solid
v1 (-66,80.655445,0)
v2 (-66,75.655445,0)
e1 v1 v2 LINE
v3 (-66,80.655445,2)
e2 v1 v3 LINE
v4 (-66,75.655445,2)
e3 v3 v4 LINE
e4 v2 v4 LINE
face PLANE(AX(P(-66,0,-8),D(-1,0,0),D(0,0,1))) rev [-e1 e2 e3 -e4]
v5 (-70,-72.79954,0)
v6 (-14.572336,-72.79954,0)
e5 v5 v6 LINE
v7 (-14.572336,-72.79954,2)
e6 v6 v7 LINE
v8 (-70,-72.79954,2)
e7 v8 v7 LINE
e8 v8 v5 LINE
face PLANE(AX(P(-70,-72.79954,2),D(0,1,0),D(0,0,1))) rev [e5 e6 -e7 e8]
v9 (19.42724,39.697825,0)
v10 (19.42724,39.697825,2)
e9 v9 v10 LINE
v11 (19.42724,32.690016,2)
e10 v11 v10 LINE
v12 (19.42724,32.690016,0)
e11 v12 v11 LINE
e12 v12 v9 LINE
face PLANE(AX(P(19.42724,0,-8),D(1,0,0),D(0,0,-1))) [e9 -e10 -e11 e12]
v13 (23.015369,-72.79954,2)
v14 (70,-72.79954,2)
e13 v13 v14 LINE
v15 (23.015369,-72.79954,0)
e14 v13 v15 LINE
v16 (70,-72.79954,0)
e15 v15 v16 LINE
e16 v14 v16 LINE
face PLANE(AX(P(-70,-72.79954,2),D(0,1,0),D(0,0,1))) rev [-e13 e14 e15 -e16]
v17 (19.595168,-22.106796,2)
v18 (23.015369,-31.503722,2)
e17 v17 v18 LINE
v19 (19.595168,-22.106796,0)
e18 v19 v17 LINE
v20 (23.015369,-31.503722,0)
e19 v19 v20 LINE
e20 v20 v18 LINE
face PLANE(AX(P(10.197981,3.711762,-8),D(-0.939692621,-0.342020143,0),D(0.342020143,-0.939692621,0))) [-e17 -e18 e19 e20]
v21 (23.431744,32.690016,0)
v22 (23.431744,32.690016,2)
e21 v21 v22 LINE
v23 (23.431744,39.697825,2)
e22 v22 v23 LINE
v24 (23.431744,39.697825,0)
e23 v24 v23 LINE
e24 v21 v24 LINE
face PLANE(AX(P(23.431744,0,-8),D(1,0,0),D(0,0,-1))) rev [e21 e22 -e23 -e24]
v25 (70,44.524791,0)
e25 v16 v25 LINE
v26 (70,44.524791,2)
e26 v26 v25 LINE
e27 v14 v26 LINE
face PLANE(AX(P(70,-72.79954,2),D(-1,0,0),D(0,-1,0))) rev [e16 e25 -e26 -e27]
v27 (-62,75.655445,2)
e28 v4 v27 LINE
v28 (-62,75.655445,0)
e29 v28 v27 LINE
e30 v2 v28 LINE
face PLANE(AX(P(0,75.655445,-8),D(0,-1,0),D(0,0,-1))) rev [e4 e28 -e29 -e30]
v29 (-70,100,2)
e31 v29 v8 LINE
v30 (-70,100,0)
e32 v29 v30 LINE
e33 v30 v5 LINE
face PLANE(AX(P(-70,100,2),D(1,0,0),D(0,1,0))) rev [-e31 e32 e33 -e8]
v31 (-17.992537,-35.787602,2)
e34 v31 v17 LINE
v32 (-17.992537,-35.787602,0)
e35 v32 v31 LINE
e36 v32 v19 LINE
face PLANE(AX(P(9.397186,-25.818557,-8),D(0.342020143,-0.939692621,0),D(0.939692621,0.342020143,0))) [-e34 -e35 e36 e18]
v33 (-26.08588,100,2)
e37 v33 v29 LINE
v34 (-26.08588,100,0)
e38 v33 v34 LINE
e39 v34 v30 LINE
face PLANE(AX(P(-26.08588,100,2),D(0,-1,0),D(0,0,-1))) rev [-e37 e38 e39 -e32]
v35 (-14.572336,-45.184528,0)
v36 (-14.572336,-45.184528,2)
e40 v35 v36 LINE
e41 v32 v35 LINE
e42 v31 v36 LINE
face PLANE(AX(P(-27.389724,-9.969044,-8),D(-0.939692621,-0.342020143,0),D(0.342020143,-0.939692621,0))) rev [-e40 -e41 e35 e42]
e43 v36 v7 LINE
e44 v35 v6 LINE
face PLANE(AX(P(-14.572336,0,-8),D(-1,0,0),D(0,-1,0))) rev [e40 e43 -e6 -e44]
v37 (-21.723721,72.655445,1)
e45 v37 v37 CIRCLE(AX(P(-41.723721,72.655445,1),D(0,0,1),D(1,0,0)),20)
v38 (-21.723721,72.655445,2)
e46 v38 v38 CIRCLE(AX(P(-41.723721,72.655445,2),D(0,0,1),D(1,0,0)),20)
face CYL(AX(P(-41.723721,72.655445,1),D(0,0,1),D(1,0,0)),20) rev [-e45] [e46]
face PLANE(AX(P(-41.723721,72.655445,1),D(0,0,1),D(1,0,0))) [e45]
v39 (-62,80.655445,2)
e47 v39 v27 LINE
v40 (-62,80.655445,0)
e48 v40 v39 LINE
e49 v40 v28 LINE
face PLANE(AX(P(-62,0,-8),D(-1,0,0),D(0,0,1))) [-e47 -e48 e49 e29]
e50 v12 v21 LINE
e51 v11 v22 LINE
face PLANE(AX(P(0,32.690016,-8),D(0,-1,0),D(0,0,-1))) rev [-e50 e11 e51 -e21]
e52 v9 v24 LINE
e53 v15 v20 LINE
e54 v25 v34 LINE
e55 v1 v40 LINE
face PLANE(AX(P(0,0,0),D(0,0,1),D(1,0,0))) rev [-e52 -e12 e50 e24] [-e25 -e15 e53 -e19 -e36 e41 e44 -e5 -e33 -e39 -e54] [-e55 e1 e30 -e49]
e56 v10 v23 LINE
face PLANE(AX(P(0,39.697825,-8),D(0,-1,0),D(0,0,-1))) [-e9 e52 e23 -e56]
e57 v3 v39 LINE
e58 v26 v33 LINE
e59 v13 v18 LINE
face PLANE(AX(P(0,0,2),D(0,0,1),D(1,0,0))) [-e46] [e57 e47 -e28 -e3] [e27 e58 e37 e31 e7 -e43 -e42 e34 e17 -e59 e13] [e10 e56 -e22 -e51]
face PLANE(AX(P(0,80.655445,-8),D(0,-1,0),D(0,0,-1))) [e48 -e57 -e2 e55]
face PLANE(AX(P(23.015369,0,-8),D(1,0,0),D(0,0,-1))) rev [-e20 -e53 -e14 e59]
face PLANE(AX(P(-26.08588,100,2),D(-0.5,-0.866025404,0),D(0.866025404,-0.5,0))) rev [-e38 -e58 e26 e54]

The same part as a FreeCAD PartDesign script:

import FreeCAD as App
import Part
import Sketcher
from FreeCAD import Vector
Q = App.Units.Quantity

doc = App.newDocument("Part")
body = doc.addObject("PartDesign::Body", "Body")

sketch1 = body.newObject("Sketcher::SketchObject", "Sketch")
sketch1.AttachmentSupport = (doc.getObject("XY_Plane"), [""])
sketch1.MapMode = "FlatFace"
sketch1.addGeometry([
    Part.LineSegment(Vector(-70, 100, 0), Vector(-70, -73, 0)),
    Part.LineSegment(Vector(-70, -73, 0), Vector(70, -73, 0)),
    Part.LineSegment(Vector(70, -73, 0), Vector(70, 45, 0)),
    Part.LineSegment(Vector(70, 45, 0), Vector(-26, 100, 0)),
    Part.LineSegment(Vector(-26, 100, 0), Vector(-70, 100, 0)),
], False)
sketch1.addConstraint([
    Sketcher.Constraint("Coincident", 0, 2, 1, 1),
    Sketcher.Constraint("Coincident", 1, 2, 2, 1),
    Sketcher.Constraint("Coincident", 2, 2, 3, 1),
    Sketcher.Constraint("Coincident", 3, 2, 4, 1),
    Sketcher.Constraint("Coincident", 4, 2, 0, 1),
    Sketcher.Constraint("Vertical", 0),
    Sketcher.Constraint("Horizontal", 1),
    Sketcher.Constraint("Vertical", 2),
    Sketcher.Constraint("Horizontal", 4),
    Sketcher.Constraint("DistanceX", 1, 1, 1, 2, 140.0),
    Sketcher.Constraint("Angle", 3, Q("150 deg")),
    Sketcher.Constraint("DistanceX", 0, 2, -1, 1, 70.0),
    Sketcher.Constraint("DistanceY", -1, 1, 3, 2, 100.0),
    Sketcher.Constraint("DistanceX", 4, 2, 4, 1, 43.91412),
    Sketcher.Constraint("DistanceY", 0, 2, 0, 1, 172.79954),
])
pad1 = body.newObject("PartDesign::Pad", "Pad")
pad1.Profile = sketch1
pad1.Length = 2

sketch2 = body.newObject("Sketcher::SketchObject", "Sketch001")
sketch2.AttachmentSupport = (doc.getObject("XY_Plane"), [""])
sketch2.MapMode = "FlatFace"
sketch2.AttachmentOffset = App.Placement(Vector(0, 0, 2), App.Rotation())
sketch2.addGeometry([
    Part.LineSegment(Vector(19.4, 39.7, 0), Vector(19.4, 32.7, 0)),
    Part.LineSegment(Vector(19.4, 32.7, 0), Vector(23.4, 32.7, 0)),
    Part.LineSegment(Vector(23.4, 32.7, 0), Vector(23.4, 39.7, 0)),
    Part.LineSegment(Vector(23.4, 39.7, 0), Vector(19.4, 39.7, 0)),
    Part.LineSegment(Vector(-66, 80.7, 0), Vector(-66, 75.7, 0)),
    Part.LineSegment(Vector(-66, 75.7, 0), Vector(-62, 75.7, 0)),
    Part.LineSegment(Vector(-62, 75.7, 0), Vector(-62, 80.7, 0)),
    Part.LineSegment(Vector(-62, 80.7, 0), Vector(-66, 80.7, 0)),
    Part.LineSegment(Vector(-14.6, -75.2, 0), Vector(23, -75.2, 0)),
    Part.LineSegment(Vector(23, -75.2, 0), Vector(23, -31.5, 0)),
    Part.LineSegment(Vector(23, -31.5, 0), Vector(19.6, -22.1, 0)),
    Part.LineSegment(Vector(19.6, -22.1, 0), Vector(-18, -35.8, 0)),
    Part.LineSegment(Vector(-18, -35.8, 0), Vector(-14.6, -45.2, 0)),
    Part.LineSegment(Vector(-14.6, -45.2, 0), Vector(-14.6, -75.2, 0)),
], False)
sketch2.addConstraint([
    Sketcher.Constraint("Coincident", 0, 2, 1, 1),
    Sketcher.Constraint("Coincident", 1, 2, 2, 1),
    Sketcher.Constraint("Coincident", 2, 2, 3, 1),
    Sketcher.Constraint("Coincident", 3, 2, 0, 1),
    Sketcher.Constraint("Coincident", 4, 2, 5, 1),
    Sketcher.Constraint("Coincident", 5, 2, 6, 1),
    Sketcher.Constraint("Coincident", 6, 2, 7, 1),
    Sketcher.Constraint("Coincident", 7, 2, 4, 1),
    Sketcher.Constraint("Coincident", 8, 2, 9, 1),
    Sketcher.Constraint("Coincident", 9, 2, 10, 1),
    Sketcher.Constraint("Coincident", 10, 2, 11, 1),
    Sketcher.Constraint("Coincident", 11, 2, 12, 1),
    Sketcher.Constraint("Coincident", 12, 2, 13, 1),
    Sketcher.Constraint("Coincident", 13, 2, 8, 1),
    Sketcher.Constraint("Vertical", 0),
    Sketcher.Constraint("Horizontal", 1),
    Sketcher.Constraint("Vertical", 2),
    Sketcher.Constraint("Horizontal", 3),
    Sketcher.Constraint("Vertical", 4),
    Sketcher.Constraint("Horizontal", 5),
    Sketcher.Constraint("Vertical", 6),
    Sketcher.Constraint("Horizontal", 7),
    Sketcher.Constraint("Horizontal", 8),
    Sketcher.Constraint("Vertical", 9),
    Sketcher.Constraint("Vertical", 13),
    Sketcher.Constraint("Perpendicular", 10, 11),
    Sketcher.Constraint("Perpendicular", 11, 12),
    Sketcher.Constraint("Equal", 10, 12),
    Sketcher.Constraint("DistanceX", 5, 1, 5, 2, 4.0),
    Sketcher.Constraint("DistanceY", 4, 2, 4, 1, 5.0),
    Sketcher.Constraint("DistanceY", 13, 2, 13, 1, 30.0),
    Sketcher.Constraint("Angle", 10, Q("110 deg")),
    Sketcher.Constraint("Distance", 10, 10.0),
    Sketcher.Constraint("Distance", 11, 40.0),
    Sketcher.Constraint("DistanceX", 4, 2, -1, 1, 66.0),
    Sketcher.Constraint("DistanceY", 0, 2, 0, 1, 7.007809),
    Sketcher.Constraint("DistanceY", 11, 2, -1, 1, 35.787602),
    Sketcher.Constraint("DistanceX", 1, 1, 1, 2, 4.004505),
    Sketcher.Constraint("DistanceX", -1, 1, 0, 2, 19.42724),
    Sketcher.Constraint("DistanceX", -1, 1, 8, 2, 23.015369),
    Sketcher.Constraint("DistanceY", 3, 2, 4, 2, 35.95762),
    Sketcher.Constraint("DistanceY", 9, 2, 1, 2, 64.193738),
])
pocket1 = body.newObject("PartDesign::Pocket", "Pocket")
pocket1.Profile = sketch2
pocket1.Length = 10

sketch3 = body.newObject("Sketcher::SketchObject", "Sketch002")
sketch3.AttachmentSupport = (doc.getObject("XY_Plane"), [""])
sketch3.MapMode = "FlatFace"
sketch3.AttachmentOffset = App.Placement(Vector(0, 0, 2), App.Rotation())
sketch3.addGeometry(Part.Circle(Vector(-42, 73, 0), Vector(0, 0, 1), 20), False)
sketch3.addConstraint([
    Sketcher.Constraint("Diameter", 0, 40.0),
    Sketcher.Constraint("DistanceX", 0, 3, -1, 1, 41.723721),
    Sketcher.Constraint("DistanceY", -1, 1, 0, 3, 72.655445),
])
pocket2 = body.newObject("PartDesign::Pocket", "Pocket001")
pocket2.Profile = sketch3
pocket2.Length = 1

doc.recompute()
